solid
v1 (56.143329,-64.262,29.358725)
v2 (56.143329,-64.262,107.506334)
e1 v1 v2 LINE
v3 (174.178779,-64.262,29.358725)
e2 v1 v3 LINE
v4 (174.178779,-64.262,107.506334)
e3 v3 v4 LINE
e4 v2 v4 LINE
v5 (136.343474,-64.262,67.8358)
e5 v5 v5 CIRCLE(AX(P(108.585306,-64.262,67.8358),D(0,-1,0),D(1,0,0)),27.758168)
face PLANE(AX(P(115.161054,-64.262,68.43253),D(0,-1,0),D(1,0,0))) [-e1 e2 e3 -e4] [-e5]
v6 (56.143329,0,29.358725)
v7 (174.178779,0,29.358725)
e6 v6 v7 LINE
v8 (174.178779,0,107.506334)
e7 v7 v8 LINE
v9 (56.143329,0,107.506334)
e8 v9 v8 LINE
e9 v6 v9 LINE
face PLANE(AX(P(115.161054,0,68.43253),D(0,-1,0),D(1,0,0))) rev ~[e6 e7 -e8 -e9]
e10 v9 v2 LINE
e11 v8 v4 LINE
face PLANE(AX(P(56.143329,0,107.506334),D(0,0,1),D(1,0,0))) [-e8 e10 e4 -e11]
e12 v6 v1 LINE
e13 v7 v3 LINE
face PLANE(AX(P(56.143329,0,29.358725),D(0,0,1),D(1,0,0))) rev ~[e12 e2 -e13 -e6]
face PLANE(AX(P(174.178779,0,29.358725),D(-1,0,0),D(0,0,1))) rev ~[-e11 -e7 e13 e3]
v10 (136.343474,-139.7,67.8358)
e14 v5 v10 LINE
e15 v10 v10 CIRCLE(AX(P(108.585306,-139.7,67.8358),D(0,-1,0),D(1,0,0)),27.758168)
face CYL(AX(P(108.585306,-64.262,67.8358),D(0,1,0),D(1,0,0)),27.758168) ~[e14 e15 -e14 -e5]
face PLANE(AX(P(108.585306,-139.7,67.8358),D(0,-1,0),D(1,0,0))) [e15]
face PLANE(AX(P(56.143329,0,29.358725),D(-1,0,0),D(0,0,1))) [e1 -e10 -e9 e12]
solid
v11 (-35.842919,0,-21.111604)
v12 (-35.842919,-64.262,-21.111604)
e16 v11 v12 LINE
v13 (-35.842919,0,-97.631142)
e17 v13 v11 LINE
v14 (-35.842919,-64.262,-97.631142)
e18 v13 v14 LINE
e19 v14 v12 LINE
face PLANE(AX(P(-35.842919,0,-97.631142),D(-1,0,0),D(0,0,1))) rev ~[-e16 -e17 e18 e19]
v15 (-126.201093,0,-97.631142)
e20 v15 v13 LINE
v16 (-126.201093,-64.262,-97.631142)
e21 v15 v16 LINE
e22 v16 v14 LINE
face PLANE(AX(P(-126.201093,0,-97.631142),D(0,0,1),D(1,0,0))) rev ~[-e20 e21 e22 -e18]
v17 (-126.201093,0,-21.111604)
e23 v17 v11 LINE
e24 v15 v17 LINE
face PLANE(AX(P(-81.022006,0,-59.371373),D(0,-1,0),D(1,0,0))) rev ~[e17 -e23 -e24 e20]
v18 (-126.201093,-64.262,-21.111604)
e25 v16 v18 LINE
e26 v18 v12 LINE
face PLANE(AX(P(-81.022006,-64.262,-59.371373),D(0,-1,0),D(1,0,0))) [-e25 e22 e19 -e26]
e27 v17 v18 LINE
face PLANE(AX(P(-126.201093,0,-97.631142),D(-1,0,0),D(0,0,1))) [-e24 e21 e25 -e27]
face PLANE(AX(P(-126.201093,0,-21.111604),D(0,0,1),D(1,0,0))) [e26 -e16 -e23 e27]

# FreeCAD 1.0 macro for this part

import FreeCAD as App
import Part
import Sketcher


def add_polygon(sketch, points):
    """Adds a closed chain of lines whose ends are joined by coincident constraints."""
    first, n = sketch.GeometryCount, len(points)
    for a, b in zip(points, points[1:] + points[:1]):
        sketch.addGeometry(Part.LineSegment(App.Vector(*a, 0), App.Vector(*b, 0)), False)
    for i in range(n):
        sketch.addConstraint(Sketcher.Constraint("Coincident", first + i, 2, first + (i + 1) % n, 1))

doc = App.newDocument("Part")
params = doc.addObject("Spreadsheet::Sheet", "Params")
for row, (alias, value) in enumerate([
    ("pad1_length", "2.53 in"),
    ("pad2_length", "2.97 in"),
], start=1):
    params.set(f"A{row}", alias)
    params.set(f"B{row}", "=" + value)
    params.setAlias(f"B{row}", alias)

body = doc.addObject("PartDesign::Body", "Body")
body.AllowCompound = True

sketch1 = body.newObject("Sketcher::SketchObject", "Sketch")
sketch1.AttachmentSupport = (doc.getObject("XZ_Plane"), [""])
sketch1.MapMode = "FlatFace"
add_polygon(sketch1, [(-126.201093, -21.111604), (-126.201093, -97.631142), (-35.842919, -97.631142), (-35.842919, -21.111604)])
add_polygon(sketch1, [(56.143329, 107.506334), (56.143329, 29.358725), (174.178779, 29.358725), (174.178779, 107.506334)])
sketch1.addConstraint([
    Sketcher.Constraint("Vertical", 0),
    Sketcher.Constraint("Horizontal", 1),
    Sketcher.Constraint("Vertical", 2),
    Sketcher.Constraint("Horizontal", 3),
    Sketcher.Constraint("Vertical", 4),
    Sketcher.Constraint("Horizontal", 5),
    Sketcher.Constraint("Vertical", 6),
    Sketcher.Constraint("Horizontal", 7),
    Sketcher.Constraint("DistanceX", 5, 1, 5, 2, 118.03545),
    Sketcher.Constraint("DistanceY", 4, 2, 4, 1, 78.147609),
    Sketcher.Constraint("DistanceX", 1, 1, 1, 2, 90.358175),
    Sketcher.Constraint("DistanceY", 0, 2, 0, 1, 76.519538),
    Sketcher.Constraint("DistanceY", 0, 2, -1, 1, 97.631142),
    Sketcher.Constraint("DistanceX", 1, 2, -1, 1, 35.842919),
    Sketcher.Constraint("DistanceX", -1, 1, 4, 2, 56.143329),
    Sketcher.Constraint("DistanceY", 2, 2, 4, 2, 50.470329),
])
pad1 = body.newObject("PartDesign::Pad", "Pad")
pad1.Profile = sketch1
pad1.setExpression("Length", "Params.pad1_length")

sketch2 = body.newObject("Sketcher::SketchObject", "Sketch001")
sketch2.AttachmentSupport = (doc.getObject("XZ_Plane"), [""])
sketch2.MapMode = "FlatFace"
sketch2.AttachmentOffset = App.Placement(App.Vector(0, 0, 2.53 * 25.4), App.Rotation())
sketch2.addGeometry(Part.Circle(App.Vector(108.585306, 67.8358, 0), App.Vector(0, 0, 1), 27.758168), False)
sketch2.addConstraint([
    Sketcher.Constraint("Diameter", 0, 55.516336),
    Sketcher.Constraint("DistanceY", -1, 1, 0, 3, 67.8358),
    Sketcher.Constraint("DistanceX", -1, 1, 0, 3, 108.585306),
])
pad2 = body.newObject("PartDesign::Pad", "Pad001")
pad2.Profile = sketch2
pad2.setExpression("Length", "Params.pad2_length")

doc.recompute()
